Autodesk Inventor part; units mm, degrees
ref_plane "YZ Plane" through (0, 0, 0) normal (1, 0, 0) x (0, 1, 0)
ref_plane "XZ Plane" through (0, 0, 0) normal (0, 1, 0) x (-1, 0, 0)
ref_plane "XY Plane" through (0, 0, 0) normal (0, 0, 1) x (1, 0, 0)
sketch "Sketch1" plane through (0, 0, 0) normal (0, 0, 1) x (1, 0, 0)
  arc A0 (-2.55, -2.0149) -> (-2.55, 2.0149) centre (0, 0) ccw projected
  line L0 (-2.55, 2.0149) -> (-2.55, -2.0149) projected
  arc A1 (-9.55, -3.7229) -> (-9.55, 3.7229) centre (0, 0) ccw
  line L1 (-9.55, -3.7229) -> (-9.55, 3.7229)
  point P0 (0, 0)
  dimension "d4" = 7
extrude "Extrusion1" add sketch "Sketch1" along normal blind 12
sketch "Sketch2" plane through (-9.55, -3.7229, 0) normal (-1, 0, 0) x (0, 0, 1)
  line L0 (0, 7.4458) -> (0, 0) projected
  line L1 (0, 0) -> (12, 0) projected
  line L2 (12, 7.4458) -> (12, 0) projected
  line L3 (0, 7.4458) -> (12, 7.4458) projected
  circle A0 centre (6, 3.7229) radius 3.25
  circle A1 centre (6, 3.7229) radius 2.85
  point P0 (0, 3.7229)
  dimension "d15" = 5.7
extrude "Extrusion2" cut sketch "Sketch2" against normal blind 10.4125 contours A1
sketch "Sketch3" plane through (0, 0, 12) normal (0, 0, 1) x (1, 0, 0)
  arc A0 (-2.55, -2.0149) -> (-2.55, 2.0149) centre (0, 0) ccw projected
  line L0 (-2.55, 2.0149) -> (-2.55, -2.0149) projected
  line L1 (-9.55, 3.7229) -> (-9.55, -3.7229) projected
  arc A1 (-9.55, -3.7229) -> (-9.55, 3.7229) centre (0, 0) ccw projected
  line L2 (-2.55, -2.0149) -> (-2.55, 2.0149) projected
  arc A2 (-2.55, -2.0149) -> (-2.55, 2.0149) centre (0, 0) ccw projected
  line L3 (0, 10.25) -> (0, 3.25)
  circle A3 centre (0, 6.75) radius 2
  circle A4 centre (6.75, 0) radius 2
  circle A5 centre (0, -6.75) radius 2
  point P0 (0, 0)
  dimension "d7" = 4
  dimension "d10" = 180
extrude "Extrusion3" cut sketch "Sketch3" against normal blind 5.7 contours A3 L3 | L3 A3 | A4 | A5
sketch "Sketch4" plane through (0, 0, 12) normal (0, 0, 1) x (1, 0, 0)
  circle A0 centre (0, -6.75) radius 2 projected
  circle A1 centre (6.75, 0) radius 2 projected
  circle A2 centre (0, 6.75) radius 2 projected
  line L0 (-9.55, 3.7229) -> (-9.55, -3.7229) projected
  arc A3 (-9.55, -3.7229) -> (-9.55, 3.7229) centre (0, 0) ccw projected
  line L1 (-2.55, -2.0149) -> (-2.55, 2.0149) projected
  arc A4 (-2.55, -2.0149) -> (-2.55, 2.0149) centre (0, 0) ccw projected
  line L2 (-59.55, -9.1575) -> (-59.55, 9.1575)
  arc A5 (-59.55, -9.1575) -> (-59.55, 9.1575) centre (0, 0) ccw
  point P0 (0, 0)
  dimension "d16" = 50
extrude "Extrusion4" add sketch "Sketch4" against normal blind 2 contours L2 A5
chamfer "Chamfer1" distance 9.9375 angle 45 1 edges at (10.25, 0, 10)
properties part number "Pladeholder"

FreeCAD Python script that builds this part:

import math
import FreeCAD as App
import Part
import Sketcher
from FreeCAD import Vector


def edges_at(feature, points):
    """Names of the edges that pass closest to the given points."""
    edges = feature.Shape.Edges
    near = lambda p: min(range(len(edges)), key=lambda i: edges[i].distToShape(Part.Vertex(*p))[0])
    return sorted({f"Edge{near(p) + 1}" for p in points})

doc = App.newDocument("Part")
body = doc.addObject("PartDesign::Body", "Body")

# Sketch on XY plane
sketch1 = doc.addObject("Sketcher::SketchObject", "Sketch")
body.addObject(sketch1)
sketch1.AttachmentSupport = (doc.XY_Plane, [""])
sketch1.MapMode = "FlatFace"
sketch1.addGeometry([
    Part.LineSegment(Vector(-9.6, 3.7, 0), Vector(-9.6, -3.7, 0)),
    Part.ArcOfCircle(Part.Circle(Vector(0, 0, 0), Vector(0, 0, 1), 10.2), math.radians(-159), math.radians(159)),
    Part.ArcOfCircle(Part.Circle(Vector(0, 0, 0), Vector(0, 0, 1), 3.2), math.radians(-142), math.radians(142)),
    Part.LineSegment(Vector(-2.5, -2, 0), Vector(-2.5, 2, 0)),
], False)
sketch1.addConstraint([
    Sketcher.Constraint("Coincident", 0, 1, 1, 2),
    Sketcher.Constraint("Coincident", 1, 1, 0, 2),
    Sketcher.Constraint("Coincident", 2, 1, 3, 1),
    Sketcher.Constraint("Coincident", 3, 2, 2, 2),
    Sketcher.Constraint("Vertical", 0),
    Sketcher.Constraint("Vertical", 3),
    Sketcher.Constraint("Coincident", 1, 3, -1, 1),
    Sketcher.Constraint("Coincident", 2, 3, -1, 1),
    Sketcher.Constraint("DistanceX", 1, 1, 2, 1, 7.0),
    Sketcher.Constraint("Radius", 1, 10.25),
    Sketcher.Constraint("Radius", 2, 3.25),
    Sketcher.Constraint("DistanceX", 0, 1, -1, 1, 9.55),
])
pad1 = doc.addObject("PartDesign::Pad", "Pad")
body.addObject(pad1)
pad1.Profile = sketch1
pad1.Length = 12

# Sketch on YZ plane
sketch2 = doc.addObject("Sketcher::SketchObject", "Sketch001")
body.addObject(sketch2)
sketch2.AttachmentSupport = (doc.YZ_Plane, [""])
sketch2.MapMode = "FlatFace"
sketch2.AttachmentOffset = App.Placement(Vector(0, 0, -9.55), App.Rotation())
sketch2.addGeometry(Part.Circle(Vector(0, 6, 0), Vector(0, 0, 1), 2.9), False)
sketch2.addConstraint([
    Sketcher.Constraint("PointOnObject", 0, 3, -2),
    Sketcher.Constraint("Diameter", 0, 5.7),
    Sketcher.Constraint("DistanceY", -1, 1, 0, 3, 6.0),
])
pocket1 = doc.addObject("PartDesign::Pocket", "Pocket")
body.addObject(pocket1)
pocket1.Profile = sketch2
pocket1.Length = 10.4125
pocket1.Reversed = True

# Sketch on XY plane
sketch3 = doc.addObject("Sketcher::SketchObject", "Sketch002")
body.addObject(sketch3)
sketch3.AttachmentSupport = (doc.XY_Plane, [""])
sketch3.MapMode = "FlatFace"
sketch3.AttachmentOffset = App.Placement(Vector(0, 0, 12), App.Rotation())
sketch3.addGeometry([
    Part.Circle(Vector(0, 6.8, 0), Vector(0, 0, 1), 2),
    Part.Circle(Vector(6.8, 0, 0), Vector(0, 0, 1), 2),
    Part.Circle(Vector(0, -6.8, 0), Vector(0, 0, 1), 2),
], False)
sketch3.addConstraint([
    Sketcher.Constraint("Equal", 0, 1),
    Sketcher.Constraint("Equal", 1, 2),
    Sketcher.Constraint("Symmetric", 0, 3, 2, 3, -1, 1),
    Sketcher.Constraint("PointOnObject", 0, 3, -2),
    Sketcher.Constraint("PointOnObject", 1, 3, -1),
    Sketcher.Constraint("Diameter", 0, 4.0),
    Sketcher.Constraint("DistanceY", 2, 3, 0, 3, 13.5),
    Sketcher.Constraint("DistanceX", -1, 1, 1, 3, 6.75),
])
pocket2 = doc.addObject("PartDesign::Pocket", "Pocket001")
body.addObject(pocket2)
pocket2.Profile = sketch3
pocket2.Length = 5.7

# Sketch on XY plane
sketch4 = doc.addObject("Sketcher::SketchObject", "Sketch003")
body.addObject(sketch4)
sketch4.AttachmentSupport = (doc.XY_Plane, [""])
sketch4.MapMode = "FlatFace"
sketch4.AttachmentOffset = App.Placement(Vector(0, 0, 12), App.Rotation())
sketch4.addGeometry([
    Part.LineSegment(Vector(-60, 9, 0), Vector(-60, -9, 0)),
    Part.ArcOfCircle(Part.Circle(Vector(0, 0, 0), Vector(0, 0, 1), 60), math.radians(-171), math.radians(171)),
    Part.LineSegment(Vector(-10, -4, 0), Vector(-10, 4, 0)),
    Part.ArcOfCircle(Part.Circle(Vector(0, 0, 0), Vector(0, 0, 1), 10), math.radians(-159), math.radians(159)),
], False)
sketch4.addConstraint([
    Sketcher.Constraint("Coincident", 0, 1, 1, 2),
    Sketcher.Constraint("Coincident", 1, 1, 0, 2),
    Sketcher.Constraint("Coincident", 2, 1, 3, 1),
    Sketcher.Constraint("Coincident", 3, 2, 2, 2),
    Sketcher.Constraint("Vertical", 0),
    Sketcher.Constraint("Vertical", 2),
    Sketcher.Constraint("Coincident", 1, 3, -1, 1),
    Sketcher.Constraint("Coincident", 3, 3, -1, 1),
    Sketcher.Constraint("DistanceX", 1, 1, 2, 1, 50.0),
    Sketcher.Constraint("Radius", 1, 60.25),
    Sketcher.Constraint("Radius", 3, 10.25),
    Sketcher.Constraint("DistanceY", 0, 2, 0, 1, 18.315),
])
pad2 = doc.addObject("PartDesign::Pad", "Pad001")
body.addObject(pad2)
pad2.Profile = sketch4
pad2.Length = 2
pad2.Reversed = True
doc.recompute()

chamfer = doc.addObject("PartDesign::Chamfer", "Chamfer")
body.addObject(chamfer)
chamfer.Base = (pad2, edges_at(pad2, [(10.25, 0, 10)]))
chamfer.Size = 9.9375

doc.recompute()
